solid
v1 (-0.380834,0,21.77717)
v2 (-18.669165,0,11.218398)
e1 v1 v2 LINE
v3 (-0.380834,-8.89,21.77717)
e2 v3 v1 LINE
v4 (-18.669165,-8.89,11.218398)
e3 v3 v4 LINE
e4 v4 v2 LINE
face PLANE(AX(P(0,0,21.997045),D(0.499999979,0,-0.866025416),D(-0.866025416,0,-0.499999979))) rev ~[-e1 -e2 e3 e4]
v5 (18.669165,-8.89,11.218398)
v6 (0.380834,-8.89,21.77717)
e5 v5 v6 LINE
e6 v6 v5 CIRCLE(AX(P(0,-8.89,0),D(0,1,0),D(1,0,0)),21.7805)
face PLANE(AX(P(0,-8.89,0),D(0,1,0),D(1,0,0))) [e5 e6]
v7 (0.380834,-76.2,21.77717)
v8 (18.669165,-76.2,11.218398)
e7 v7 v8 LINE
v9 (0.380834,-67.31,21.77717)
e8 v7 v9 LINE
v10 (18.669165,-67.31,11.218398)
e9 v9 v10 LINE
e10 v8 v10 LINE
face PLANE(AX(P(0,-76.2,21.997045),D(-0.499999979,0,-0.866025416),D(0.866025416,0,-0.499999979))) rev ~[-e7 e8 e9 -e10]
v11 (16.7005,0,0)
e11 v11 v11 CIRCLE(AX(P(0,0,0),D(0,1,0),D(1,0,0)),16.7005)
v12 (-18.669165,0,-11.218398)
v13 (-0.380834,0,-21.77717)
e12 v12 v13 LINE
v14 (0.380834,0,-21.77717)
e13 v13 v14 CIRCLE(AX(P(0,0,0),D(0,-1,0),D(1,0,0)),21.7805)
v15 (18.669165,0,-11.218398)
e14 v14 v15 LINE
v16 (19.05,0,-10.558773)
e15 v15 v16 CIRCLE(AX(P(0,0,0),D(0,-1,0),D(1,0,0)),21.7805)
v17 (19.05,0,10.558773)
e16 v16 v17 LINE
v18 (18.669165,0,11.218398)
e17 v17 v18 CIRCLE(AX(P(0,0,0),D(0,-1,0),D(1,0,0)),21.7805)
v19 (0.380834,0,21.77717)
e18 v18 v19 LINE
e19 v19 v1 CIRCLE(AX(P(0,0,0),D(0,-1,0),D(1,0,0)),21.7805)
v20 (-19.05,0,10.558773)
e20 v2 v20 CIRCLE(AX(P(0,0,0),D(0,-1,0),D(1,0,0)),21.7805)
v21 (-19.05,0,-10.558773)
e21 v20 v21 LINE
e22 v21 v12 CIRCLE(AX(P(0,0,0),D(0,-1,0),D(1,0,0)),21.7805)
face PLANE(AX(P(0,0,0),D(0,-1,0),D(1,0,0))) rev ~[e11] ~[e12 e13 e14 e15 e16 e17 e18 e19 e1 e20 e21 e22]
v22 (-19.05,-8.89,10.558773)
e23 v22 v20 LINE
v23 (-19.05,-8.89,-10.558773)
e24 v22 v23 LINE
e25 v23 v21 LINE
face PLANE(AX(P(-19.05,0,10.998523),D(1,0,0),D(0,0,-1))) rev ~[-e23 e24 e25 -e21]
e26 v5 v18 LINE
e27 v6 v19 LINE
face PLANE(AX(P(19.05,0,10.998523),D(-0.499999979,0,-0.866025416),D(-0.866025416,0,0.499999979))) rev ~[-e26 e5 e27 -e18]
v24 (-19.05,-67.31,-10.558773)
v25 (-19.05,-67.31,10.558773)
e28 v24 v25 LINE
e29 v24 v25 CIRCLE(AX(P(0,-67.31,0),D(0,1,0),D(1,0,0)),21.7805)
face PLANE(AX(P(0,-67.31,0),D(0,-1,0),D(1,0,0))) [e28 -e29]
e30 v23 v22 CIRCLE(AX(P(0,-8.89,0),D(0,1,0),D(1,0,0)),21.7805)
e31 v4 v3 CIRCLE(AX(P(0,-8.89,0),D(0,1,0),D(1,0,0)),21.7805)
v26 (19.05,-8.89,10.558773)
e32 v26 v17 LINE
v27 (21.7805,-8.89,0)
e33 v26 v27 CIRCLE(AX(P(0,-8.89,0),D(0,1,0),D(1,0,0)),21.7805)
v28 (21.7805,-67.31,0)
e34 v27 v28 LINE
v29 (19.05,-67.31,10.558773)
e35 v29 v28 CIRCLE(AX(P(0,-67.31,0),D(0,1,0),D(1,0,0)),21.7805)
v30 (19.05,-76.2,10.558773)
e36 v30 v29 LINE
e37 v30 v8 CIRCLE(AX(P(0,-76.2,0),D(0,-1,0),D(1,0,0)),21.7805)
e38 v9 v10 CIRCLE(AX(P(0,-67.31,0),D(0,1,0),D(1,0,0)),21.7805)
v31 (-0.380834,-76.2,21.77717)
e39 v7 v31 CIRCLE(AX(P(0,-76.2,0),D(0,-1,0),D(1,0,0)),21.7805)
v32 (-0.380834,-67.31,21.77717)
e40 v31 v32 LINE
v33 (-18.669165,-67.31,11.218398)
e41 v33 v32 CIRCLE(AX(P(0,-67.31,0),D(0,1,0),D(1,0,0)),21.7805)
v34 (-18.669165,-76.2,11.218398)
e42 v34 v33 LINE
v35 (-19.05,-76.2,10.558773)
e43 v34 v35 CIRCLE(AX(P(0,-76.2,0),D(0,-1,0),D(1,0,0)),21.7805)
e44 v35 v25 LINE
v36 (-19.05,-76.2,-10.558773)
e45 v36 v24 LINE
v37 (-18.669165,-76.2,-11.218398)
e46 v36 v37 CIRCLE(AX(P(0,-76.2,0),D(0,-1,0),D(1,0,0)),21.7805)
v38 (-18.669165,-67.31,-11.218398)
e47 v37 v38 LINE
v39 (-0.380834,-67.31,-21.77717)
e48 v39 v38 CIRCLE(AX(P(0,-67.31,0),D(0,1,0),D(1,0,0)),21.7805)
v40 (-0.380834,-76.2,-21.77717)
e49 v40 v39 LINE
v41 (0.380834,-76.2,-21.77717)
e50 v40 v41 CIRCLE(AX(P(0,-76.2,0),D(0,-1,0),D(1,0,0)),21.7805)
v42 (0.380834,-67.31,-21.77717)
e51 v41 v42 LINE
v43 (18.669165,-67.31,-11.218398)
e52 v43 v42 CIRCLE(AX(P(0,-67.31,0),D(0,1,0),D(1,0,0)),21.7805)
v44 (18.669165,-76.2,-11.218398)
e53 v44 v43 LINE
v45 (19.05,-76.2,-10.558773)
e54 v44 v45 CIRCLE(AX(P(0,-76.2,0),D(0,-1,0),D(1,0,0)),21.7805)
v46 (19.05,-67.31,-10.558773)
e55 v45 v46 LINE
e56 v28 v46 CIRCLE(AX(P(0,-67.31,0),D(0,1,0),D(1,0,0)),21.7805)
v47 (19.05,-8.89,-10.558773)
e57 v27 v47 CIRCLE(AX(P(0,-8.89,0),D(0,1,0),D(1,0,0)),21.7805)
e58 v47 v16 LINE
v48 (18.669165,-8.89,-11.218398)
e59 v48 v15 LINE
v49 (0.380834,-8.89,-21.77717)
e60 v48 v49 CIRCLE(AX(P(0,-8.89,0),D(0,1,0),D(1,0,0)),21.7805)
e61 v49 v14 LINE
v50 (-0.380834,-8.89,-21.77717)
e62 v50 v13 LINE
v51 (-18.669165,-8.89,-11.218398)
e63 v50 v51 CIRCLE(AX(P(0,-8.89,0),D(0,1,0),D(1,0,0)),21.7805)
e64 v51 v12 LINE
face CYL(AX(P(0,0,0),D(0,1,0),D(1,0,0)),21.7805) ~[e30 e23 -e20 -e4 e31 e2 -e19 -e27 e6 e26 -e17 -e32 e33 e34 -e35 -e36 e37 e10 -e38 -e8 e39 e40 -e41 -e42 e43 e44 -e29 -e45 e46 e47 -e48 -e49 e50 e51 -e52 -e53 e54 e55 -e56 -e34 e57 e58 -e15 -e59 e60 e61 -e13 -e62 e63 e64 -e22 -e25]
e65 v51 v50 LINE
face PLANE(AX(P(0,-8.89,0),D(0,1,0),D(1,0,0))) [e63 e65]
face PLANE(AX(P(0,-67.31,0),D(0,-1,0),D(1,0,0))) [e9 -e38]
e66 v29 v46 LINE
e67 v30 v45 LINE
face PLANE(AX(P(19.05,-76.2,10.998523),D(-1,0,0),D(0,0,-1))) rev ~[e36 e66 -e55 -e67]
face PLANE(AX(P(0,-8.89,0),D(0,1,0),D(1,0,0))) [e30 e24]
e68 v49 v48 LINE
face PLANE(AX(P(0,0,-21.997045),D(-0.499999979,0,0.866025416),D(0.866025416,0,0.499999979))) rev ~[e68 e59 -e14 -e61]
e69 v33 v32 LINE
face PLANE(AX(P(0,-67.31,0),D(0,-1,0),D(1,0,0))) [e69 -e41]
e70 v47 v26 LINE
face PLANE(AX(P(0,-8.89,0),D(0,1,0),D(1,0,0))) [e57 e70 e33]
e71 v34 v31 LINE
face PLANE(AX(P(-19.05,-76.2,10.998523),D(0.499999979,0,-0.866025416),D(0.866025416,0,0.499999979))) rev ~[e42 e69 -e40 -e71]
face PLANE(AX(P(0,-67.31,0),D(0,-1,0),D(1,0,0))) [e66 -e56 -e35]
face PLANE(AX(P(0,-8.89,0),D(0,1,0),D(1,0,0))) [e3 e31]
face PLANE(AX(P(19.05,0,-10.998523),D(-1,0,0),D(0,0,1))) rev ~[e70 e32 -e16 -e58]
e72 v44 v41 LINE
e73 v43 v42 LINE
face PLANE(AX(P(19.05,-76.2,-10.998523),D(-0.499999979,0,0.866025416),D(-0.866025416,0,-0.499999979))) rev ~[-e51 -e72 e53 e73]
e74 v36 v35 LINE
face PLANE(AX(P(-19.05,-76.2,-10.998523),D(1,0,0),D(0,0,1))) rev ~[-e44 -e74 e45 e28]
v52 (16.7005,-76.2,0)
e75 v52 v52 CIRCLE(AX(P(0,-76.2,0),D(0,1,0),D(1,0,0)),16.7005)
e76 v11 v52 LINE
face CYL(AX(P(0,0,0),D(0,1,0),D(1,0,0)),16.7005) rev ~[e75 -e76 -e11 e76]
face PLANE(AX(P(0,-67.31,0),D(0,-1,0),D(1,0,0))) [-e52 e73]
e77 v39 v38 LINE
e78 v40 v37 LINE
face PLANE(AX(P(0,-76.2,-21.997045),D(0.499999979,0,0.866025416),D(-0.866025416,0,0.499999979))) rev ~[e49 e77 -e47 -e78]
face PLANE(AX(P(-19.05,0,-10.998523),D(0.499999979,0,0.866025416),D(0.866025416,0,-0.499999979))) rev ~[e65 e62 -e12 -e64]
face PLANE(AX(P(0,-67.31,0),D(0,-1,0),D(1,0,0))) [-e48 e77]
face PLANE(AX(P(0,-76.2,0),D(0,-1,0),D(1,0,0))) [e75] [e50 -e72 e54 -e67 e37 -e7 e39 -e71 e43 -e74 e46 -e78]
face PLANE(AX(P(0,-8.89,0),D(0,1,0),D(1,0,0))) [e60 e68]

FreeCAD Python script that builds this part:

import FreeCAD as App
import Part
import Sketcher
from FreeCAD import Vector
Q = App.Units.Quantity

doc = App.newDocument("Part")
body = doc.addObject("PartDesign::Body", "Body")

# Sketch on XY plane
sketch1 = body.newObject("Sketcher::SketchObject", "Sketch")
sketch1.AttachmentSupport = (doc.getObject("XY_Plane"), [""])
sketch1.MapMode = "FlatFace"
sketch1.addGeometry(Part.Circle(Vector(0, 0, 0), Vector(0, 0, 1), 22), False)
sketch1.addConstraint([
    Sketcher.Constraint("Coincident", 0, 3, -1, 1),
    Sketcher.Constraint("Diameter", 0, Q("1.715 in")),
])
pad1 = body.newObject("PartDesign::Pad", "Pad")
pad1.Profile = sketch1
pad1.Length = Q("3 in")
body2 = doc.addObject("PartDesign::Body", "Body001")
doc.recompute()

body.Placement = App.Placement(Vector(0, 0, 0), App.Rotation(Vector(1, 0, 0), 90))
boolean = body2.newObject("PartDesign::Boolean", "Boolean")
boolean.Type = "Fuse"
boolean.addObjects([body])

# Sketch on XZ plane
sketch2 = body2.newObject("Sketcher::SketchObject", "Sketch001")
sketch2.AttachmentSupport = (doc.getObject("XZ_Plane001"), [""])
sketch2.MapMode = "FlatFace"
sketch2.addGeometry(Part.Circle(Vector(0, 0, 0), Vector(0, 0, 1), 17), False)
sketch2.addConstraint([
    Sketcher.Constraint("Coincident", 0, 3, -1, 1),
    Sketcher.Constraint("Diameter", 0, Q("1.315 in")),
])
pocket1 = body2.newObject("PartDesign::Pocket", "Pocket")
pocket1.Profile = sketch2
pocket1.Length = Q("3 in")
pocket1.Reversed = True

# Sketch on XZ plane
sketch3 = body2.newObject("Sketcher::SketchObject", "Sketch002")
sketch3.AttachmentSupport = (doc.getObject("XZ_Plane001"), [""])
sketch3.MapMode = "FlatFace"
sketch3.addGeometry([
    Part.Circle(Vector(0, 0, 0), Vector(0, 0, 1), 22),  # 0
    Part.LineSegment(Vector(0, 22, 0), Vector(-19, 11, 0)),  # 1
    Part.LineSegment(Vector(-19, 11, 0), Vector(-19, -11, 0)),  # 2
    Part.LineSegment(Vector(-19, -11, 0), Vector(0, -22, 0)),  # 3
    Part.LineSegment(Vector(0, -22, 0), Vector(19, -11, 0)),  # 4
    Part.LineSegment(Vector(19, -11, 0), Vector(19, 11, 0)),  # 5
    Part.LineSegment(Vector(19, 11, 0), Vector(0, 22, 0)),  # 6
], False)
sketch3.addConstraint([
    Sketcher.Constraint("Coincident", 1, 2, 2, 1),
    Sketcher.Constraint("Coincident", 2, 2, 3, 1),
    Sketcher.Constraint("Coincident", 3, 2, 4, 1),
    Sketcher.Constraint("Coincident", 4, 2, 5, 1),
    Sketcher.Constraint("Coincident", 5, 2, 6, 1),
    Sketcher.Constraint("Coincident", 6, 2, 1, 1),
    Sketcher.Constraint("Vertical", 2),
    Sketcher.Constraint("Vertical", 5),
    Sketcher.Constraint("Coincident", 0, 3, -1, 1),
    Sketcher.Constraint("Symmetric", 1, 2, 4, 2, -1, 1),
    Sketcher.Constraint("Symmetric", 3, 2, 6, 2, -1, 1),
    Sketcher.Constraint("PointOnObject", 3, 2, -2),
    Sketcher.Constraint("Parallel", 3, 6),
    Sketcher.Constraint("Horizontal", 2, 2, 4, 2),
    Sketcher.Constraint("Diameter", 0, Q("1.75 in")),
    Sketcher.Constraint("Angle", 1, Q("-150.000001 deg")),
    Sketcher.Constraint("DistanceX", 2, 2, 4, 2, Q("1.5 in")),
    Sketcher.Constraint("DistanceY", 2, 2, 2, 1, 21.997046),
])
pocket2 = body2.newObject("PartDesign::Pocket", "Pocket001")
pocket2.Profile = sketch3
pocket2.Length = Q("0.35 in")
pocket2.Reversed = True

# Sketch on XZ plane
sketch4 = body2.newObject("Sketcher::SketchObject", "Sketch003")
sketch4.AttachmentSupport = (doc.getObject("XZ_Plane001"), [""])
sketch4.MapMode = "FlatFace"
sketch4.AttachmentOffset = App.Placement(Vector(0, 0, 3 * 25.4), App.Rotation())
sketch4.addGeometry([
    Part.Circle(Vector(0, 0, 0), Vector(0, 0, 1), 22),  # 0
    Part.LineSegment(Vector(0, -22, 0), Vector(-19, -11, 0)),  # 1
    Part.LineSegment(Vector(-19, -11, 0), Vector(-19, 11, 0)),  # 2
    Part.LineSegment(Vector(-19, 11, 0), Vector(0, 22, 0)),  # 3
    Part.LineSegment(Vector(0, 22, 0), Vector(19, 11, 0)),  # 4
    Part.LineSegment(Vector(19, 11, 0), Vector(19, -11, 0)),  # 5
    Part.LineSegment(Vector(19, -11, 0), Vector(0, -22, 0)),  # 6
], False)
sketch4.addConstraint([
    Sketcher.Constraint("Coincident", 1, 2, 2, 1),
    Sketcher.Constraint("Coincident", 2, 2, 3, 1),
    Sketcher.Constraint("Coincident", 3, 2, 4, 1),
    Sketcher.Constraint("Coincident", 4, 2, 5, 1),
    Sketcher.Constraint("Coincident", 5, 2, 6, 1),
    Sketcher.Constraint("Coincident", 6, 2, 1, 1),
    Sketcher.Constraint("Vertical", 2),
    Sketcher.Constraint("Vertical", 5),
    Sketcher.Constraint("Coincident", 0, 3, -1, 1),
    Sketcher.Constraint("Symmetric", 1, 2, 4, 2, -1, 1),
    Sketcher.Constraint("Symmetric", 3, 2, 6, 2, -1, 1),
    Sketcher.Constraint("PointOnObject", 3, 2, -2),
    Sketcher.Constraint("Parallel", 3, 6),
    Sketcher.Constraint("Horizontal", 2, 2, 4, 2),
    Sketcher.Constraint("Diameter", 0, Q("1.75 in")),
    Sketcher.Constraint("Angle", 1, Q("150.000001 deg")),
    Sketcher.Constraint("DistanceX", 2, 2, 4, 2, Q("1.5 in")),
    Sketcher.Constraint("DistanceY", 2, 1, 2, 2, 21.997046),
])
pocket3 = body2.newObject("PartDesign::Pocket", "Pocket002")
pocket3.Profile = sketch4
pocket3.Length = Q("0.35 in")

doc.recompute()
